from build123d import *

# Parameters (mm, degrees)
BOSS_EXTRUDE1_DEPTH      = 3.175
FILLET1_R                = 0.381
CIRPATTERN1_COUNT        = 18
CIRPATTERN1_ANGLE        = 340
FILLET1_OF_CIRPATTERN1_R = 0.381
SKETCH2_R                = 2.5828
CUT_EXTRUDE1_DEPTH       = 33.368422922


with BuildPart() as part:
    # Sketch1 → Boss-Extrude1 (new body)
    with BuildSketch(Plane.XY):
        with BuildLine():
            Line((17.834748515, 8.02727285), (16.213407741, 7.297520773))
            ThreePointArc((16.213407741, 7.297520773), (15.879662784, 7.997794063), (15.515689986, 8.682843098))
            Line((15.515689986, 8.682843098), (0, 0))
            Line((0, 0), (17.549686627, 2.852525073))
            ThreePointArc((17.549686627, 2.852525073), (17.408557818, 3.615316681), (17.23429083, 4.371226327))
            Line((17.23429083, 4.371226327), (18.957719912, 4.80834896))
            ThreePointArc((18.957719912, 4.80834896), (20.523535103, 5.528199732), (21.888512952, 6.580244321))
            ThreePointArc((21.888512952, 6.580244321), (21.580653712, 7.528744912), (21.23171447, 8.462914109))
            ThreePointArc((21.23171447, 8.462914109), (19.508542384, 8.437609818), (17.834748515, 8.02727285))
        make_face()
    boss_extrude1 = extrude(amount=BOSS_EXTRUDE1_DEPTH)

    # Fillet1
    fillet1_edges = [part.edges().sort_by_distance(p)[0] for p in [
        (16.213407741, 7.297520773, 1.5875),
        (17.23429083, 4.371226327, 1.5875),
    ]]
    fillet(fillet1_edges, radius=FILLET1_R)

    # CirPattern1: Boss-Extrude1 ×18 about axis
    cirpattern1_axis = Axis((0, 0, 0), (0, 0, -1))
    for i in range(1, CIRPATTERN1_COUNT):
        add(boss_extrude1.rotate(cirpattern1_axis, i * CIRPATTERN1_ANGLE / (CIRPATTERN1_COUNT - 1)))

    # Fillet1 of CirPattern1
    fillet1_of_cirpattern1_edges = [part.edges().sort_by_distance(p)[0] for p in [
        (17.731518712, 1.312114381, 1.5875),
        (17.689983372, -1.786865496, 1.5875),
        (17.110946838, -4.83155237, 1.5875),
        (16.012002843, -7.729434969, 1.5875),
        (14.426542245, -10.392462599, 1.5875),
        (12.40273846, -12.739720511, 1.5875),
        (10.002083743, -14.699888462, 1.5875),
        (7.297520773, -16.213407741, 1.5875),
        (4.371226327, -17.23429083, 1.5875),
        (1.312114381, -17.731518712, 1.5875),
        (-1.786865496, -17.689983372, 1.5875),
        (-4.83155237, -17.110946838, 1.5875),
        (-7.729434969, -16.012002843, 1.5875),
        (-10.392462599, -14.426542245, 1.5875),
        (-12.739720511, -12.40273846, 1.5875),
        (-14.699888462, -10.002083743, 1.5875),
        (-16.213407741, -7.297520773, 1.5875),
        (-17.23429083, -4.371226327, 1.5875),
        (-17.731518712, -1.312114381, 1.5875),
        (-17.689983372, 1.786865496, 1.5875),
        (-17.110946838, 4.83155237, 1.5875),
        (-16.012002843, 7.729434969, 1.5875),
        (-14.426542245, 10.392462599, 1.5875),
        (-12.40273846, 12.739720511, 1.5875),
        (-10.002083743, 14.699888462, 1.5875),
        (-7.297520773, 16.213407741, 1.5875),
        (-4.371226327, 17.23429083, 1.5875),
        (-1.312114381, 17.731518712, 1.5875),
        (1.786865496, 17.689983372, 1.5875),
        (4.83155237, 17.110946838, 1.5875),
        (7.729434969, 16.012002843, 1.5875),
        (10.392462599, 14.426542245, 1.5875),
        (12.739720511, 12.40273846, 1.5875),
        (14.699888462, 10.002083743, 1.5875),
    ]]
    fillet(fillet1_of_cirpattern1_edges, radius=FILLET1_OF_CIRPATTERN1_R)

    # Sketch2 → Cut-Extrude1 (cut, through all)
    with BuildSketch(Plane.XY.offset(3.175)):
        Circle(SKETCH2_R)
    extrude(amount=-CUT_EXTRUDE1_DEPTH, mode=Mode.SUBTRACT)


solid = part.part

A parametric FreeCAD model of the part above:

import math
import FreeCAD as App
import Part
import Sketcher
Q = App.Units.Quantity


def edges_at(feature, points):
    """Names of the edges that pass closest to the given points."""
    edges = feature.Shape.Edges
    near = lambda p: min(range(len(edges)), key=lambda i: edges[i].distToShape(Part.Vertex(*p))[0])
    return sorted({f"Edge{near(p) + 1}" for p in points})

doc = App.newDocument("Part")
body = doc.addObject("PartDesign::Body", "Body")

sketch1 = body.newObject("Sketcher::SketchObject", "Sketch")
sketch1.AttachmentSupport = (doc.getObject("XY_Plane"), [""])
sketch1.MapMode = "FlatFace"
sketch1.addGeometry(Part.LineSegment(App.Vector(17.8, 8, 0), App.Vector(16.2, 7.3, 0)), False)
sketch1.addGeometry(Part.ArcOfCircle(Part.Circle(App.Vector(0, 0, 0), App.Vector(0, 0, 1), 17.8), math.radians(24.23), math.radians(29.23)), False)
sketch1.addGeometry(Part.LineSegment(App.Vector(15.5, 8.7, 0), App.Vector(0, 0, 0)), False)
sketch1.addGeometry(Part.LineSegment(App.Vector(0, 0, 0), App.Vector(17.5, 2.9, 0)), False)
sketch1.addGeometry(Part.ArcOfCircle(Part.Circle(App.Vector(0, 0, 0), App.Vector(0, 0, 1), 17.8), math.radians(9.23), math.radians(14.23)), False)
sketch1.addGeometry(Part.LineSegment(App.Vector(17.2, 4.4, 0), App.Vector(19, 4.8, 0)), False)
sketch1.addGeometry(Part.ArcOfCircle(Part.Circle(App.Vector(16.6, 12.1, 0), App.Vector(0, 0, 1), 7.7), math.radians(-72), math.radians(-46)), False)
sketch1.addGeometry(Part.ArcOfCircle(Part.Circle(App.Vector(0, 0, 0), App.Vector(0, 0, 1), 22.9), math.radians(16.73), math.radians(21.73)), False)
sketch1.addGeometry(Part.ArcOfCircle(Part.Circle(App.Vector(20.5, 0.8, 0), App.Vector(0, 0, 1), 7.7), math.radians(84), math.radians(110)), False)
sketch1.addConstraint(Sketcher.Constraint("Coincident", 0, 2, 1, 1))
sketch1.addConstraint(Sketcher.Constraint("Coincident", 1, 2, 2, 1))
sketch1.addConstraint(Sketcher.Constraint("Coincident", 2, 2, 3, 1))
sketch1.addConstraint(Sketcher.Constraint("Coincident", 3, 2, 4, 1))
sketch1.addConstraint(Sketcher.Constraint("Coincident", 4, 2, 5, 1))
sketch1.addConstraint(Sketcher.Constraint("Coincident", 5, 2, 6, 1))
sketch1.addConstraint(Sketcher.Constraint("Coincident", 6, 2, 7, 1))
sketch1.addConstraint(Sketcher.Constraint("Coincident", 7, 2, 8, 1))
sketch1.addConstraint(Sketcher.Constraint("Coincident", 8, 2, 0, 1))
sketch1.addConstraint(Sketcher.Constraint("Coincident", 1, 3, -1, 1))
sketch1.addConstraint(Sketcher.Constraint("Coincident", 4, 3, -1, 1))
sketch1.addConstraint(Sketcher.Constraint("Coincident", 7, 3, -1, 1))
sketch1.addConstraint(Sketcher.Constraint("Coincident", 2, 2, -1, 1))
sketch1.addConstraint(Sketcher.Constraint("Equal", 1, 4))
sketch1.addConstraint(Sketcher.Constraint("Equal", 6, 8))
sketch1.addConstraint(Sketcher.Constraint("Equal", 0, 5))
sketch1.addConstraint(Sketcher.Constraint("Radius", 1, Q("0.7 in")))
sketch1.addConstraint(Sketcher.Constraint("Distance", 0, Q("0.07 in")))
sketch1.addConstraint(Sketcher.Constraint("DistanceY", 3, 2, 0, 2, Q("0.1749998 in")))
sketch1.addConstraint(Sketcher.Constraint("Radius", 6, 7.650874))
sketch1.addConstraint(Sketcher.Constraint("Radius", 7, 22.856216))
sketch1.addConstraint(Sketcher.Constraint("DistanceY", 3, 2, 4, 2, 1.518701))
sketch1.addConstraint(Sketcher.Constraint("DistanceX", 1, 2, 4, 2, 1.718601))
sketch1.addConstraint(Sketcher.Constraint("DistanceX", 7, 2, 6, 2, 0.656798))
sketch1.addConstraint(Sketcher.Constraint("DistanceX", -1, 1, 6, 3, 16.565172))
sketch1.addConstraint(Sketcher.Constraint("DistanceY", -1, 1, 0, 2, 7.297521))
sketch1.addConstraint(Sketcher.Constraint("DistanceX", -1, 1, 5, 2, 18.95772))
sketch1.addConstraint(Sketcher.Constraint("DistanceX", -1, 1, 8, 2, 17.834749))
pad1 = body.newObject("PartDesign::Pad", "Pad")
pad1.Profile = sketch1
pad1.Length = Q("0.125 in")
doc.recompute()

fillet = body.newObject("PartDesign::Fillet", "Fillet")
fillet.Base = (pad1, edges_at(pad1, [(16.213, 7.298, 1.587), (17.234, 4.371, 1.587)]))
fillet.Radius = Q("0.015 in")
doc.recompute()

polarpattern = body.newObject("PartDesign::PolarPattern", "PolarPattern")
polarpattern.Originals = [pad1]
polarpattern.Axis = (doc.getObject("Z_Axis"), [""])
polarpattern.Angle = 360
polarpattern.Occurrences = 18
body.Tip = polarpattern
doc.recompute()

fillet2 = body.newObject("PartDesign::Fillet", "Fillet001")
fillet2.Base = (polarpattern, edges_at(polarpattern, [
    (17.732, 1.312, 1.587),
    (17.69, -1.787, 1.587),
    (17.111, -4.832, 1.587),
    (16.012, -7.729, 1.587),
    (14.427, -10.392, 1.587),
    (12.403, -12.74, 1.587),
    (10.002, -14.7, 1.587),
    (7.298, -16.213, 1.587),
    (4.371, -17.234, 1.587),
    (1.312, -17.732, 1.587),
    (-1.787, -17.69, 1.587),
    (-4.832, -17.111, 1.587),
    (-7.729, -16.012, 1.587),
    (-10.392, -14.427, 1.587),
    (-12.74, -12.403, 1.587),
    (-14.7, -10.002, 1.587),
    (-16.213, -7.298, 1.587),
    (-17.234, -4.371, 1.587),
    (-17.732, -1.312, 1.587),
    (-17.69, 1.787, 1.587),
    (-17.111, 4.832, 1.587),
    (-16.012, 7.729, 1.587),
    (-14.427, 10.392, 1.587),
    (-12.403, 12.74, 1.587),
    (-10.002, 14.7, 1.587),
    (-7.298, 16.213, 1.587),
    (-4.371, 17.234, 1.587),
    (-1.312, 17.732, 1.587),
    (1.787, 17.69, 1.587),
    (4.832, 17.111, 1.587),
    (7.729, 16.012, 1.587),
    (10.392, 14.427, 1.587),
    (12.74, 12.403, 1.587),
    (14.7, 10.002, 1.587),
]))
fillet2.Radius = Q("0.015 in")

sketch2 = body.newObject("Sketcher::SketchObject", "Sketch001")
sketch2.AttachmentSupport = (doc.getObject("XY_Plane"), [""])
sketch2.MapMode = "FlatFace"
sketch2.AttachmentOffset = App.Placement(App.Vector(0, 0, 0.125 * 25.4), App.Rotation())
sketch2.addGeometry(Part.Circle(App.Vector(0, 0, 0), App.Vector(0, 0, 1), 2.6), False)
sketch2.addConstraint(Sketcher.Constraint("Coincident", 0, 3, -1, 1))
sketch2.addConstraint(Sketcher.Constraint("Diameter", 0, 5.1656))
pocket1 = body.newObject("PartDesign::Pocket", "Pocket")
pocket1.Profile = sketch2
pocket1.Type = "ThroughAll"

doc.recompute()
